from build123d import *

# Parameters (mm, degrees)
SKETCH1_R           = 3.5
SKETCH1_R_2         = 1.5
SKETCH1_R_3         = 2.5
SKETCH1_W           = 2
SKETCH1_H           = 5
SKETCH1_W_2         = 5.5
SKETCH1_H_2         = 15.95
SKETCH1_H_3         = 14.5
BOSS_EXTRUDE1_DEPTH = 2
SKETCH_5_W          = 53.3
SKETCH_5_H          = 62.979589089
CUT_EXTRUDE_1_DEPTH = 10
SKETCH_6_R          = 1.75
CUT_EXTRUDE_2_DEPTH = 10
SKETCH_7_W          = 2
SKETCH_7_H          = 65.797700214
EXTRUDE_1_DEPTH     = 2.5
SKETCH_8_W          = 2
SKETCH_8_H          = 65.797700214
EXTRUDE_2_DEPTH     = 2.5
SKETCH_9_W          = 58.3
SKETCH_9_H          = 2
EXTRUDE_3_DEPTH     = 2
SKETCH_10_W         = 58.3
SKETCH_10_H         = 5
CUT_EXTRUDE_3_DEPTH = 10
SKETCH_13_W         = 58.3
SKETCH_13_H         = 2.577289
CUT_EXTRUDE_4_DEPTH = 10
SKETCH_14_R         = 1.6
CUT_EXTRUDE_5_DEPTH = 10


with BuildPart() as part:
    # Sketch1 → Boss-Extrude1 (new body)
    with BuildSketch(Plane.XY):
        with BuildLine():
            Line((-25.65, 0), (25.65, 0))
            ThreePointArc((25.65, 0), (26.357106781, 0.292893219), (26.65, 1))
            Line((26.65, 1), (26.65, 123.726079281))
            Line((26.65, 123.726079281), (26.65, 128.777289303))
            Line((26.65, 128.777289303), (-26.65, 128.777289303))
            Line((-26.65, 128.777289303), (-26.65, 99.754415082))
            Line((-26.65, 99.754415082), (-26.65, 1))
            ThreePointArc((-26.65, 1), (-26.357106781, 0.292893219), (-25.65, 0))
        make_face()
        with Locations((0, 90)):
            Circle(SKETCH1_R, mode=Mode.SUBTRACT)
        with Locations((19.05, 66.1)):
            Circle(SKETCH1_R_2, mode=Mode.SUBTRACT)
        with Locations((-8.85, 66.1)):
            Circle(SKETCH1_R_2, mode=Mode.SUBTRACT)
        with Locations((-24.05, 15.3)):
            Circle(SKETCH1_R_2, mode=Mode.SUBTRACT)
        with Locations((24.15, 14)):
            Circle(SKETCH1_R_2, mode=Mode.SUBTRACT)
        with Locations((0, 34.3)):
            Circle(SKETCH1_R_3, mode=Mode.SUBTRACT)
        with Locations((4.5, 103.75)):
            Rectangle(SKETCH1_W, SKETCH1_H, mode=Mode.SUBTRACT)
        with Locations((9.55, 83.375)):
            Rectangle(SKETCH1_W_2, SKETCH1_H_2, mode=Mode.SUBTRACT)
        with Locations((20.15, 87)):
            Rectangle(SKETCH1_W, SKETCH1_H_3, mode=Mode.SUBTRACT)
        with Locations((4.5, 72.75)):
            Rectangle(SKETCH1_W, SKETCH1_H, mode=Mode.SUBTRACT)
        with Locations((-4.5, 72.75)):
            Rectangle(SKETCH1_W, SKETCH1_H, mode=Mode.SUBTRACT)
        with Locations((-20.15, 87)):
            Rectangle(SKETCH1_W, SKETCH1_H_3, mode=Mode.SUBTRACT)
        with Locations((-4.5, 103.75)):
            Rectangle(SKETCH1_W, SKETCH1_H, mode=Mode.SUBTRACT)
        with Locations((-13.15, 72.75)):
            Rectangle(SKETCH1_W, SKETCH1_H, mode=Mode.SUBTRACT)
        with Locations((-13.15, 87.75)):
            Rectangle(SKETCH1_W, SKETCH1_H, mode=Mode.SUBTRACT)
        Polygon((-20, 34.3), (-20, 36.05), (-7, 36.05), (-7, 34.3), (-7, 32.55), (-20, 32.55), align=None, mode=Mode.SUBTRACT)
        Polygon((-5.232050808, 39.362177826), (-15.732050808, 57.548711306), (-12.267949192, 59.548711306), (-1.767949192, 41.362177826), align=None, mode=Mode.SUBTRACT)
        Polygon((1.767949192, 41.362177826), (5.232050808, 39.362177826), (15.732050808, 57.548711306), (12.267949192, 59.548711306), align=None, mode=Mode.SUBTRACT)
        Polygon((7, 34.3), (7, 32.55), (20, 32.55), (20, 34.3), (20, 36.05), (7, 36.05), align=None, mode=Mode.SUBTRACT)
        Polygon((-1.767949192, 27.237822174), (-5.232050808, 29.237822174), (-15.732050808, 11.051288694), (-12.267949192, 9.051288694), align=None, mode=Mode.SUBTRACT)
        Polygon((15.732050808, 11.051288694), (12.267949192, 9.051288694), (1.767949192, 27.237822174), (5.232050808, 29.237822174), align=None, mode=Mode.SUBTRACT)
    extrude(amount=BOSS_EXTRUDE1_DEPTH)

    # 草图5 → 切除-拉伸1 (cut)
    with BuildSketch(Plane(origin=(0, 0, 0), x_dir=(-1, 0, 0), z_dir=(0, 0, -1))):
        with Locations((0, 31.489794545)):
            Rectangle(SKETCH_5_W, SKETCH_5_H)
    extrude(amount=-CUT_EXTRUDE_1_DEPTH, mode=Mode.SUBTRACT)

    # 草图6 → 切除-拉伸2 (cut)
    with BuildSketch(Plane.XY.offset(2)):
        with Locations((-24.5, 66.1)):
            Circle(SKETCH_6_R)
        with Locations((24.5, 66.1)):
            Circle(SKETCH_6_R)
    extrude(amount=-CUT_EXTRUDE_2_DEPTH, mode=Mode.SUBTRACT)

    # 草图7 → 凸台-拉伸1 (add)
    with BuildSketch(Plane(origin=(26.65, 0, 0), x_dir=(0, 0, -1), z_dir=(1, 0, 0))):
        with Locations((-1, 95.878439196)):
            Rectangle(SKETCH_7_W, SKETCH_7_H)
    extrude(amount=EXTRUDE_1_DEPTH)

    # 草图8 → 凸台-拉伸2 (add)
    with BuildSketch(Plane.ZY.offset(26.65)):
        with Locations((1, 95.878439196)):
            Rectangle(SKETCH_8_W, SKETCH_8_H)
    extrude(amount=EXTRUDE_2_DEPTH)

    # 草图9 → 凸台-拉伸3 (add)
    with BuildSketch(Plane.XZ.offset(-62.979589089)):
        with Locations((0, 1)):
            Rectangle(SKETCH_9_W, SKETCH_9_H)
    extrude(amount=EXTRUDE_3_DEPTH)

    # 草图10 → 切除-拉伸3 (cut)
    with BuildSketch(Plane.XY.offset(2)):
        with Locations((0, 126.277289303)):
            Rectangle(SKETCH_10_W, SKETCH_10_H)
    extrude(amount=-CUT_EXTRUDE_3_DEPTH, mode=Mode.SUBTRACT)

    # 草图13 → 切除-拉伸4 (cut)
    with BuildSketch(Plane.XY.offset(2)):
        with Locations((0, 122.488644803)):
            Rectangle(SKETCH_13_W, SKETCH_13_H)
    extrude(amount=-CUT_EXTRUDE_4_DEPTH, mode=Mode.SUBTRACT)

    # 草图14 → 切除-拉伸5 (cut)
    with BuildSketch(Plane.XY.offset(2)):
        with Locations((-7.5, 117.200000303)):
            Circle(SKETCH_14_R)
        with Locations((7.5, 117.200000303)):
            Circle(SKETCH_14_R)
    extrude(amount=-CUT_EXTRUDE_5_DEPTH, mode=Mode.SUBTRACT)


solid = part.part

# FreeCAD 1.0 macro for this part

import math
import FreeCAD as App
import Part
import Sketcher

V = App.Vector
Q = App.Units.Quantity


def add_polygon(sketch, points):
    """Adds a closed chain of lines whose ends are joined by coincident constraints."""
    first, n = sketch.GeometryCount, len(points)
    for a, b in zip(points, points[1:] + points[:1]):
        sketch.addGeometry(Part.LineSegment(App.Vector(*a, 0), App.Vector(*b, 0)), False)
    for i in range(n):
        sketch.addConstraint(Sketcher.Constraint("Coincident", first + i, 2, first + (i + 1) % n, 1))

doc = App.newDocument("Part")
params = doc.addObject("Spreadsheet::Sheet", "Params")
for row, (alias, value) in enumerate([
    ("sketch1_diameter", "3 mm"),
    ("sketch1_diameter2", "5 mm"),
    ("sketch1_diameter3", "7 mm"),
    ("sketch1_radius", "1 mm"),
    ("sketch1_width", "13 mm"),
    ("pad1_length", "2 mm"),
    ("sketch2_width", "53.3 mm"),
    ("pocket1_length", "10 mm"),
    ("sketch3_diameter", "3.5 mm"),
    ("pocket2_length", "10 mm"),
    ("sketch4_height", "2 mm"),
    ("pad2_length", "2.5 mm"),
    ("sketch5_height", "2 mm"),
    ("pad3_length", "2.5 mm"),
    ("sketch6_height", "2 mm"),
    ("sketch6_width", "58.3 mm"),
    ("pad4_length", "2 mm"),
    ("sketch7_height", "5 mm"),
    ("sketch7_width", "58.3 mm"),
    ("pocket3_length", "10 mm"),
    ("sketch8_width", "58.3 mm"),
    ("pocket4_length", "10 mm"),
    ("sketch9_diameter", "3.2 mm"),
    ("pocket5_length", "10 mm"),
], start=1):
    params.set(f"A{row}", alias)
    params.set(f"B{row}", "=" + value)
    params.setAlias(f"B{row}", alias)

body = doc.addObject("PartDesign::Body", "Body")

sketch1 = body.newObject("Sketcher::SketchObject", "Sketch")
sketch1.AttachmentSupport = (doc.getObject("XY_Plane"), [""])
sketch1.MapMode = "FlatFace"
sketch1.addGeometry(Part.LineSegment(V(-25.6, 0, 0), V(25.6, 0, 0)), False)
sketch1.addGeometry(Part.ArcOfCircle(Part.Circle(V(25.6, 1, 0), V(0, 0, 1), 1), math.radians(-90), math.radians(0)), False)
sketch1.addGeometry(Part.LineSegment(V(26.6, 1, 0), V(26.6, 128.8, 0)), False)
sketch1.addGeometry(Part.LineSegment(V(26.6, 128.8, 0), V(-26.6, 128.8, 0)), False)
sketch1.addGeometry(Part.LineSegment(V(-26.6, 128.8, 0), V(-26.6, 1, 0)), False)
sketch1.addGeometry(Part.ArcOfCircle(Part.Circle(V(-25.6, 1, 0), V(0, 0, 1), 1), math.radians(-180), math.radians(-90)), False)
sketch1.addGeometry(Part.Circle(V(-24.1, 15.3, 0), V(0, 0, 1), 1.5), False)
add_polygon(sketch1, [(-5.2, 29.2), (-1.8, 27.2), (-12.3, 9.1), (-15.7, 11.1)])
add_polygon(sketch1, [(-20, 32.5), (-20, 36), (-7, 36), (-7, 32.5)])
sketch1.addGeometry(Part.Circle(V(0, 34.3, 0), V(0, 0, 1), 2.5), False)
add_polygon(sketch1, [(-1.8, 41.4), (-5.2, 39.4), (-15.7, 57.5), (-12.3, 59.5)])
add_polygon(sketch1, [(5.2, 29.2), (15.7, 11.1), (12.3, 9.1), (1.8, 27.2)])
sketch1.addGeometry(Part.Circle(V(24.1, 14, 0), V(0, 0, 1), 1.5), False)
add_polygon(sketch1, [(5.2, 39.4), (1.8, 41.4), (12.3, 59.5), (15.7, 57.5)])
add_polygon(sketch1, [(7, 32.5), (7, 36), (20, 36), (20, 32.5)])
add_polygon(sketch1, [(-12.2, 70.2), (-14.2, 70.2), (-14.2, 75.2), (-12.2, 75.2)])
sketch1.addGeometry(Part.Circle(V(-8.8, 66.1, 0), V(0, 0, 1), 1.5), False)
add_polygon(sketch1, [(-3.5, 70.2), (-5.5, 70.2), (-5.5, 75.2), (-3.5, 75.2)])
add_polygon(sketch1, [(-19.1, 79.8), (-21.1, 79.8), (-21.1, 94.2), (-19.1, 94.2)])
add_polygon(sketch1, [(-12.2, 85.2), (-14.2, 85.2), (-14.2, 90.2), (-12.2, 90.2)])
sketch1.addGeometry(Part.Circle(V(0, 90, 0), V(0, 0, 1), 3.5), False)
add_polygon(sketch1, [(-3.5, 101.2), (-5.5, 101.2), (-5.5, 106.2), (-3.5, 106.2)])
add_polygon(sketch1, [(5.5, 70.2), (3.5, 70.2), (3.5, 75.2), (5.5, 75.2)])
sketch1.addGeometry(Part.Circle(V(19.1, 66.1, 0), V(0, 0, 1), 1.5), False)
add_polygon(sketch1, [(12.3, 75.4), (6.8, 75.4), (6.8, 91.3), (12.3, 91.3)])
add_polygon(sketch1, [(5.5, 101.2), (3.5, 101.2), (3.5, 106.2), (5.5, 106.2)])
add_polygon(sketch1, [(21.1, 79.8), (19.1, 79.8), (19.1, 94.2), (21.1, 94.2)])
sketch1.addConstraint(Sketcher.Constraint("Tangent", 0, 2, 1, 1))
sketch1.addConstraint(Sketcher.Constraint("Tangent", 1, 2, 2, 1))
sketch1.addConstraint(Sketcher.Constraint("Coincident", 2, 2, 3, 1))
sketch1.addConstraint(Sketcher.Constraint("Coincident", 3, 2, 4, 1))
sketch1.addConstraint(Sketcher.Constraint("Tangent", 4, 2, 5, 1))
sketch1.addConstraint(Sketcher.Constraint("Tangent", 5, 2, 0, 1))
sketch1.addConstraint(Sketcher.Constraint("Horizontal", 0))
sketch1.addConstraint(Sketcher.Constraint("Vertical", 2))
sketch1.addConstraint(Sketcher.Constraint("Horizontal", 3))
sketch1.addConstraint(Sketcher.Constraint("Vertical", 4))
sketch1.addConstraint(Sketcher.Constraint("Vertical", 11))
sketch1.addConstraint(Sketcher.Constraint("Horizontal", 12))
sketch1.addConstraint(Sketcher.Constraint("Vertical", 13))
sketch1.addConstraint(Sketcher.Constraint("Horizontal", 14))
sketch1.addConstraint(Sketcher.Constraint("Vertical", 29))
sketch1.addConstraint(Sketcher.Constraint("Horizontal", 30))
sketch1.addConstraint(Sketcher.Constraint("Vertical", 31))
sketch1.addConstraint(Sketcher.Constraint("Horizontal", 32))
sketch1.addConstraint(Sketcher.Constraint("Horizontal", 33))
sketch1.addConstraint(Sketcher.Constraint("Vertical", 34))
sketch1.addConstraint(Sketcher.Constraint("Horizontal", 35))
sketch1.addConstraint(Sketcher.Constraint("Vertical", 36))
sketch1.addConstraint(Sketcher.Constraint("Horizontal", 38))
sketch1.addConstraint(Sketcher.Constraint("Vertical", 39))
sketch1.addConstraint(Sketcher.Constraint("Horizontal", 40))
sketch1.addConstraint(Sketcher.Constraint("Vertical", 41))
sketch1.addConstraint(Sketcher.Constraint("Horizontal", 42))
sketch1.addConstraint(Sketcher.Constraint("Vertical", 43))
sketch1.addConstraint(Sketcher.Constraint("Horizontal", 44))
sketch1.addConstraint(Sketcher.Constraint("Vertical", 45))
sketch1.addConstraint(Sketcher.Constraint("Horizontal", 46))
sketch1.addConstraint(Sketcher.Constraint("Vertical", 47))
sketch1.addConstraint(Sketcher.Constraint("Horizontal", 48))
sketch1.addConstraint(Sketcher.Constraint("Vertical", 49))
sketch1.addConstraint(Sketcher.Constraint("Horizontal", 51))
sketch1.addConstraint(Sketcher.Constraint("Vertical", 52))
sketch1.addConstraint(Sketcher.Constraint("Horizontal", 53))
sketch1.addConstraint(Sketcher.Constraint("Vertical", 54))
sketch1.addConstraint(Sketcher.Constraint("Horizontal", 55))
sketch1.addConstraint(Sketcher.Constraint("Vertical", 56))
sketch1.addConstraint(Sketcher.Constraint("Horizontal", 57))
sketch1.addConstraint(Sketcher.Constraint("Vertical", 58))
sketch1.addConstraint(Sketcher.Constraint("Horizontal", 60))
sketch1.addConstraint(Sketcher.Constraint("Vertical", 61))
sketch1.addConstraint(Sketcher.Constraint("Horizontal", 62))
sketch1.addConstraint(Sketcher.Constraint("Vertical", 63))
sketch1.addConstraint(Sketcher.Constraint("Horizontal", 64))
sketch1.addConstraint(Sketcher.Constraint("Vertical", 65))
sketch1.addConstraint(Sketcher.Constraint("Horizontal", 66))
sketch1.addConstraint(Sketcher.Constraint("Vertical", 67))
sketch1.addConstraint(Sketcher.Constraint("Horizontal", 68))
sketch1.addConstraint(Sketcher.Constraint("Vertical", 69))
sketch1.addConstraint(Sketcher.Constraint("Horizontal", 70))
sketch1.addConstraint(Sketcher.Constraint("Vertical", 71))
sketch1.addConstraint(Sketcher.Constraint("Equal", 1, 5))
sketch1.addConstraint(Sketcher.Constraint("Equal", 6, 24))
sketch1.addConstraint(Sketcher.Constraint("Equal", 24, 37))
sketch1.addConstraint(Sketcher.Constraint("Equal", 37, 59))
sketch1.addConstraint(Sketcher.Constraint("Symmetric", 0, 2, 5, 2, -1, 1))
sketch1.addConstraint(Sketcher.Constraint("Symmetric", 9, 2, 20, 2, -2))
sketch1.addConstraint(Sketcher.Constraint("Symmetric", 8, 2, 21, 2, -2))
sketch1.addConstraint(Sketcher.Constraint("Symmetric", 7, 2, 22, 2, -2))
sketch1.addConstraint(Sketcher.Constraint("Symmetric", 10, 2, 23, 2, -2))
sketch1.addConstraint(Sketcher.Constraint("Symmetric", 19, 2, 25, 2, -2))
sketch1.addConstraint(Sketcher.Constraint("Symmetric", 18, 2, 26, 2, -2))
sketch1.addConstraint(Sketcher.Constraint("Symmetric", 17, 2, 27, 2, -2))
sketch1.addConstraint(Sketcher.Constraint("Symmetric", 16, 2, 28, 2, -2))
sketch1.addConstraint(Sketcher.Constraint("Symmetric", 12, 2, 29, 2, -2))
sketch1.addConstraint(Sketcher.Constraint("Symmetric", 14, 2, 31, 2, -2))
sketch1.addConstraint(Sketcher.Constraint("Symmetric", 41, 2, 55, 2, -2))
sketch1.addConstraint(Sketcher.Constraint("Symmetric", 39, 2, 57, 2, -2))
sketch1.addConstraint(Sketcher.Constraint("Symmetric", 54, 2, 64, 2, -2))
sketch1.addConstraint(Sketcher.Constraint("Symmetric", 52, 2, 66, 2, -2))
sketch1.addConstraint(Sketcher.Constraint("Symmetric", 45, 2, 68, 2, -2))
sketch1.addConstraint(Sketcher.Constraint("Symmetric", 43, 2, 70, 2, -2))
sketch1.addConstraint(Sketcher.Constraint("PointOnObject", 15, 3, -2))
sketch1.addConstraint(Sketcher.Constraint("PointOnObject", 50, 3, -2))
sketch1.addConstraint(Sketcher.Constraint("Perpendicular", 7, 8))
sketch1.addConstraint(Sketcher.Constraint("Perpendicular", 8, 9))
sketch1.addConstraint(Sketcher.Constraint("Perpendicular", 9, 10))
sketch1.addConstraint(Sketcher.Constraint("Perpendicular", 16, 17))
sketch1.addConstraint(Sketcher.Constraint("Perpendicular", 17, 18))
sketch1.addConstraint(Sketcher.Constraint("Perpendicular", 18, 19))
sketch1.addConstraint(Sketcher.Constraint("Parallel", 19, 20))
sketch1.addConstraint(Sketcher.Constraint("Horizontal", 37, 3, 59, 3))
sketch1.addConstraint(Sketcher.Constraint("Horizontal", 36, 2, 38, 2))
sketch1.addConstraint(Sketcher.Constraint("Horizontal", 35, 2, 39, 2))
sketch1.addConstraint(Sketcher.Constraint("Vertical", 10, 2, 16, 2))
sketch1.addConstraint(Sketcher.Constraint("Vertical", 9, 2, 17, 2))
sketch1.addConstraint(Sketcher.Constraint("Vertical", 8, 2, 18, 2))
sketch1.addConstraint(Sketcher.Constraint("Vertical", 34, 2, 46, 2))
sketch1.addConstraint(Sketcher.Constraint("Vertical", 36, 2, 48, 2))
sketch1.addConstraint(Sketcher.Constraint("Vertical", 39, 2, 51, 2))
sketch1.addConstraint(Sketcher.Constraint("Vertical", 41, 2, 53, 2))
sketch1.addConstraint(Sketcher.Constraint("Equal", 35, 38))
sketch1.addConstraint(Sketcher.Constraint("Equal", 40, 42))
sketch1.addConstraint(Sketcher.Constraint("Equal", 41, 47))
sketch1.addConstraint(Sketcher.Constraint("Equal", 49, 52))
sketch1.addConstraint(Sketcher.Constraint("Diameter", 6, Q("3 mm")))
sketch1.addConstraint(Sketcher.Constraint("Diameter", 15, Q("5 mm")))
sketch1.addConstraint(Sketcher.Constraint("Diameter", 50, Q("7 mm")))
sketch1.addConstraint(Sketcher.Constraint("Radius", 1, Q("1 mm")))
sketch1.addConstraint(Sketcher.Constraint("DistanceX", 12, 1, 12, 2, Q("13 mm")))
sketch1.addConstraint(Sketcher.Constraint("DistanceX", 33, 2, 33, 1, Q("2 mm")))
sketch1.addConstraint(Sketcher.Constraint("DistanceY", 34, 1, 34, 2, Q("5 mm")))
sketch1.addConstraint(Sketcher.Constraint("Angle", 7, Q("-30 deg")))
sketch1.addConstraint(Sketcher.Constraint("Distance", 7, Q("4 mm")))
sketch1.addConstraint(Sketcher.Constraint("Distance", 8, Q("21 mm")))
sketch1.addConstraint(Sketcher.Constraint("DistanceX", 0, 1, 0, 2, Q("51.3 mm")))
sketch1.addConstraint(Sketcher.Constraint("DistanceX", 60, 2, 60, 1, Q("5.5 mm")))
sketch1.addConstraint(Sketcher.Constraint("DistanceY", 11, 1, 11, 2, Q("3.5 mm")))
sketch1.addConstraint(Sketcher.Constraint("DistanceY", 43, 1, 43, 2, Q("14.5 mm")))
sketch1.addConstraint(Sketcher.Constraint("DistanceY", -1, 1, 24, 3, Q("14 mm")))
sketch1.addConstraint(Sketcher.Constraint("DistanceY", -1, 1, 50, 3, Q("90 mm")))
sketch1.addConstraint(Sketcher.Constraint("DistanceX", 11, 2, -1, 1, Q("20 mm")))
sketch1.addConstraint(Sketcher.Constraint("DistanceY", 61, 1, 61, 2, Q("15.95 mm")))
sketch1.addConstraint(Sketcher.Constraint("DistanceY", -1, 1, 6, 3, Q("15.3 mm")))
sketch1.addConstraint(Sketcher.Constraint("DistanceY", -1, 1, 15, 3, Q("34.3 mm")))
sketch1.addConstraint(Sketcher.Constraint("DistanceY", -1, 1, 37, 3, Q("66.1 mm")))
sketch1.addConstraint(Sketcher.Constraint("DistanceX", 38, 2, -1, 1, Q("5.5 mm")))
sketch1.addConstraint(Sketcher.Constraint("DistanceX", -1, 1, 60, 2, Q("6.8 mm")))
sketch1.addConstraint(Sketcher.Constraint("DistanceY", -1, 1, 60, 2, Q("75.4 mm")))
sketch1.addConstraint(Sketcher.Constraint("DistanceX", 6, 3, -1, 1, Q("24.05 mm")))
sketch1.addConstraint(Sketcher.Constraint("DistanceX", -1, 1, 24, 3, Q("24.15 mm")))
sketch1.addConstraint(Sketcher.Constraint("DistanceX", 37, 3, -1, 1, Q("8.85 mm")))
sketch1.addConstraint(Sketcher.Constraint("DistanceX", -1, 1, 59, 3, Q("19.05 mm")))
sketch1.addConstraint(Sketcher.Constraint("DistanceY", -1, 1, 11, 2, Q("36.05 mm")))
sketch1.addConstraint(Sketcher.Constraint("DistanceX", 33, 2, -1, 1, Q("14.15 mm")))
sketch1.addConstraint(Sketcher.Constraint("DistanceY", -1, 1, 33, 2, Q("70.25 mm")))
sketch1.addConstraint(Sketcher.Constraint("DistanceX", 42, 2, -1, 1, Q("21.15 mm")))
sketch1.addConstraint(Sketcher.Constraint("DistanceY", -1, 1, 42, 2, Q("79.75 mm")))
sketch1.addConstraint(Sketcher.Constraint("DistanceY", -1, 1, 46, 2, Q("85.25 mm")))
sketch1.addConstraint(Sketcher.Constraint("DistanceY", -1, 1, 51, 2, Q("101.25 mm")))
sketch1.addConstraint(Sketcher.Constraint("DistanceY", 2, 1, 2, 2, Q("127.777289 mm")))
sketch1.addConstraint(Sketcher.Constraint("DistanceX", 7, 2, -1, 1, Q("1.767949 mm")))
sketch1.addConstraint(Sketcher.Constraint("DistanceY", -1, 1, 8, 2, Q("9.051289 mm")))
sketch1.addConstraint(Sketcher.Constraint("DistanceY", -1, 1, 17, 2, Q("57.548711 mm")))
sketch1.setExpression("Constraints[158]", "Params.sketch1_diameter")
sketch1.setExpression("Constraints[159]", "Params.sketch1_diameter2")
sketch1.setExpression("Constraints[160]", "Params.sketch1_diameter3")
sketch1.setExpression("Constraints[161]", "Params.sketch1_radius")
sketch1.setExpression("Constraints[162]", "Params.sketch1_width")
pad1 = body.newObject("PartDesign::Pad", "Pad")
pad1.Profile = sketch1
pad1.setExpression("Length", "Params.pad1_length")

sketch2 = body.newObject("Sketcher::SketchObject", "Sketch001")
sketch2.AttachmentSupport = (doc.getObject("XY_Plane"), [""])
sketch2.MapMode = "FlatFace"
add_polygon(sketch2, [(27, 63), (27, 0), (-27, 0), (-27, 63)])
sketch2.addConstraint(Sketcher.Constraint("Vertical", 0))
sketch2.addConstraint(Sketcher.Constraint("Horizontal", 1))
sketch2.addConstraint(Sketcher.Constraint("Vertical", 2))
sketch2.addConstraint(Sketcher.Constraint("Horizontal", 3))
sketch2.addConstraint(Sketcher.Constraint("Symmetric", 0, 2, 1, 2, -1, 1))
sketch2.addConstraint(Sketcher.Constraint("DistanceX", 1, 2, 1, 1, Q("53.3 mm")))
sketch2.addConstraint(Sketcher.Constraint("DistanceY", 0, 2, 0, 1, Q("62.979589 mm")))
sketch2.setExpression("Constraints[9]", "Params.sketch2_width")
pocket1 = body.newObject("PartDesign::Pocket", "Pocket")
pocket1.Profile = sketch2
pocket1.setExpression("Length", "Params.pocket1_length")
pocket1.Reversed = True

sketch3 = body.newObject("Sketcher::SketchObject", "Sketch002")
sketch3.AttachmentSupport = (doc.getObject("XY_Plane"), [""])
sketch3.MapMode = "FlatFace"
sketch3.AttachmentOffset = App.Placement(V(0, 0, 2), App.Rotation())
sketch3.addGeometry(Part.Circle(V(-24.5, 66.1, 0), V(0, 0, 1), 1.8), False)
sketch3.addGeometry(Part.Circle(V(24.5, 66.1, 0), V(0, 0, 1), 1.8), False)
sketch3.addConstraint(Sketcher.Constraint("Equal", 0, 1))
sketch3.addConstraint(Sketcher.Constraint("Symmetric", 0, 3, 1, 3, -2))
sketch3.addConstraint(Sketcher.Constraint("Diameter", 0, Q("3.5 mm")))
sketch3.addConstraint(Sketcher.Constraint("DistanceX", 0, 3, 1, 3, Q("49 mm")))
sketch3.addConstraint(Sketcher.Constraint("DistanceY", -1, 1, 0, 3, Q("66.1 mm")))
sketch3.setExpression("Constraints[2]", "Params.sketch3_diameter")
pocket2 = body.newObject("PartDesign::Pocket", "Pocket001")
pocket2.Profile = sketch3
pocket2.setExpression("Length", "Params.pocket2_length")

sketch4 = body.newObject("Sketcher::SketchObject", "Sketch003")
sketch4.AttachmentSupport = (doc.getObject("YZ_Plane"), [""])
sketch4.MapMode = "FlatFace"
sketch4.AttachmentOffset = App.Placement(V(0, 0, 26.65), App.Rotation())
add_polygon(sketch4, [(128.8, 2), (63, 2), (63, 0), (128.8, 0)])
sketch4.addConstraint(Sketcher.Constraint("Horizontal", 0))
sketch4.addConstraint(Sketcher.Constraint("Vertical", 1))
sketch4.addConstraint(Sketcher.Constraint("Horizontal", 2))
sketch4.addConstraint(Sketcher.Constraint("Vertical", 3))
sketch4.addConstraint(Sketcher.Constraint("PointOnObject", 1, 2, -1))
sketch4.addConstraint(Sketcher.Constraint("DistanceY", 1, 2, 1, 1, Q("2 mm")))
sketch4.addConstraint(Sketcher.Constraint("DistanceX", 0, 2, 0, 1, Q("65.7977 mm")))
sketch4.addConstraint(Sketcher.Constraint("DistanceX", -1, 1, 0, 2, Q("62.979589 mm")))
sketch4.setExpression("Constraints[9]", "Params.sketch4_height")
pad2 = body.newObject("PartDesign::Pad", "Pad001")
pad2.Profile = sketch4
pad2.setExpression("Length", "Params.pad2_length")

sketch5 = body.newObject("Sketcher::SketchObject", "Sketch004")
sketch5.AttachmentSupport = (doc.getObject("YZ_Plane"), [""])
sketch5.MapMode = "FlatFace"
sketch5.AttachmentOffset = App.Placement(V(0, 0, -26.65), App.Rotation())
add_polygon(sketch5, [(128.8, 0), (63, 0), (63, 2), (128.8, 2)])
sketch5.addConstraint(Sketcher.Constraint("Horizontal", 0))
sketch5.addConstraint(Sketcher.Constraint("Vertical", 1))
sketch5.addConstraint(Sketcher.Constraint("Horizontal", 2))
sketch5.addConstraint(Sketcher.Constraint("Vertical", 3))
sketch5.addConstraint(Sketcher.Constraint("PointOnObject", 0, 2, -1))
sketch5.addConstraint(Sketcher.Constraint("DistanceY", 1, 1, 1, 2, Q("2 mm")))
sketch5.addConstraint(Sketcher.Constraint("DistanceX", 0, 2, 0, 1, Q("65.7977 mm")))
sketch5.addConstraint(Sketcher.Constraint("DistanceX", -1, 1, 0, 2, Q("62.979589 mm")))
sketch5.setExpression("Constraints[9]", "Params.sketch5_height")
pad3 = body.newObject("PartDesign::Pad", "Pad002")
pad3.Profile = sketch5
pad3.setExpression("Length", "Params.pad3_length")
pad3.Reversed = True

sketch6 = body.newObject("Sketcher::SketchObject", "Sketch005")
sketch6.AttachmentSupport = (doc.getObject("XZ_Plane"), [""])
sketch6.MapMode = "FlatFace"
sketch6.AttachmentOffset = App.Placement(V(0, 0, -62.979589), App.Rotation())
add_polygon(sketch6, [(-29.1, 2), (-29.1, 0), (29.1, 0), (29.1, 2)])
sketch6.addConstraint(Sketcher.Constraint("Vertical", 0))
sketch6.addConstraint(Sketcher.Constraint("Horizontal", 1))
sketch6.addConstraint(Sketcher.Constraint("Vertical", 2))
sketch6.addConstraint(Sketcher.Constraint("Horizontal", 3))
sketch6.addConstraint(Sketcher.Constraint("Symmetric", 0, 2, 1, 2, -1, 1))
sketch6.addConstraint(Sketcher.Constraint("DistanceY", 0, 2, 0, 1, Q("2 mm")))
sketch6.addConstraint(Sketcher.Constraint("DistanceX", 1, 1, 1, 2, Q("58.3 mm")))
sketch6.setExpression("Constraints[9]", "Params.sketch6_height")
sketch6.setExpression("Constraints[10]", "Params.sketch6_width")
pad4 = body.newObject("PartDesign::Pad", "Pad003")
pad4.Profile = sketch6
pad4.setExpression("Length", "Params.pad4_length")

sketch7 = body.newObject("Sketcher::SketchObject", "Sketch006")
sketch7.AttachmentSupport = (doc.getObject("XY_Plane"), [""])
sketch7.MapMode = "FlatFace"
sketch7.AttachmentOffset = App.Placement(V(0, 0, 2), App.Rotation())
add_polygon(sketch7, [(-29, 129), (-29, 124), (29, 124), (29, 129)])
sketch7.addConstraint(Sketcher.Constraint("Vertical", 0))
sketch7.addConstraint(Sketcher.Constraint("Horizontal", 1))
sketch7.addConstraint(Sketcher.Constraint("Vertical", 2))
sketch7.addConstraint(Sketcher.Constraint("Horizontal", 3))
sketch7.addConstraint(Sketcher.Constraint("DistanceY", 0, 2, 0, 1, Q("5 mm")))
sketch7.addConstraint(Sketcher.Constraint("DistanceX", 1, 1, 1, 2, Q("58.3 mm")))
sketch7.addConstraint(Sketcher.Constraint("DistanceX", 0, 2, -1, 1, Q("29.15 mm")))
sketch7.addConstraint(Sketcher.Constraint("DistanceY", -1, 1, 0, 2, Q("123.777289 mm")))
sketch7.setExpression("Constraints[8]", "Params.sketch7_height")
sketch7.setExpression("Constraints[9]", "Params.sketch7_width")
pocket3 = body.newObject("PartDesign::Pocket", "Pocket002")
pocket3.Profile = sketch7
pocket3.setExpression("Length", "Params.pocket3_length")

sketch8 = body.newObject("Sketcher::SketchObject", "Sketch007")
sketch8.AttachmentSupport = (doc.getObject("XY_Plane"), [""])
sketch8.MapMode = "FlatFace"
sketch8.AttachmentOffset = App.Placement(V(0, 0, 2), App.Rotation())
add_polygon(sketch8, [(-29.1, 123.8), (-29.1, 121.2), (29.1, 121.2), (29.1, 123.8)])
sketch8.addConstraint(Sketcher.Constraint("Vertical", 0))
sketch8.addConstraint(Sketcher.Constraint("Horizontal", 1))
sketch8.addConstraint(Sketcher.Constraint("Vertical", 2))
sketch8.addConstraint(Sketcher.Constraint("Horizontal", 3))
sketch8.addConstraint(Sketcher.Constraint("DistanceX", 1, 1, 1, 2, Q("58.3 mm")))
sketch8.addConstraint(Sketcher.Constraint("DistanceY", -1, 1, 0, 2, Q("121.2 mm")))
sketch8.addConstraint(Sketcher.Constraint("DistanceX", 0, 2, -1, 1, Q("29.15 mm")))
sketch8.addConstraint(Sketcher.Constraint("DistanceY", 0, 2, 0, 1, Q("2.577289 mm")))
sketch8.setExpression("Constraints[8]", "Params.sketch8_width")
pocket4 = body.newObject("PartDesign::Pocket", "Pocket003")
pocket4.Profile = sketch8
pocket4.setExpression("Length", "Params.pocket4_length")

sketch9 = body.newObject("Sketcher::SketchObject", "Sketch008")
sketch9.AttachmentSupport = (doc.getObject("XY_Plane"), [""])
sketch9.MapMode = "FlatFace"
sketch9.AttachmentOffset = App.Placement(V(0, 0, 2), App.Rotation())
sketch9.addGeometry(Part.Circle(V(-7.5, 117.2, 0), V(0, 0, 1), 1.6), False)
sketch9.addGeometry(Part.Circle(V(7.5, 117.2, 0), V(0, 0, 1), 1.6), False)
sketch9.addConstraint(Sketcher.Constraint("Equal", 0, 1))
sketch9.addConstraint(Sketcher.Constraint("Symmetric", 0, 3, 1, 3, -2))
sketch9.addConstraint(Sketcher.Constraint("Diameter", 0, Q("3.2 mm")))
sketch9.addConstraint(Sketcher.Constraint("DistanceX", 0, 3, 1, 3, Q("15 mm")))
sketch9.addConstraint(Sketcher.Constraint("DistanceY", -1, 1, 0, 3, Q("117.2 mm")))
sketch9.setExpression("Constraints[2]", "Params.sketch9_diameter")
pocket5 = body.newObject("PartDesign::Pocket", "Pocket004")
pocket5.Profile = sketch9
pocket5.setExpression("Length", "Params.pocket5_length")

doc.recompute()
